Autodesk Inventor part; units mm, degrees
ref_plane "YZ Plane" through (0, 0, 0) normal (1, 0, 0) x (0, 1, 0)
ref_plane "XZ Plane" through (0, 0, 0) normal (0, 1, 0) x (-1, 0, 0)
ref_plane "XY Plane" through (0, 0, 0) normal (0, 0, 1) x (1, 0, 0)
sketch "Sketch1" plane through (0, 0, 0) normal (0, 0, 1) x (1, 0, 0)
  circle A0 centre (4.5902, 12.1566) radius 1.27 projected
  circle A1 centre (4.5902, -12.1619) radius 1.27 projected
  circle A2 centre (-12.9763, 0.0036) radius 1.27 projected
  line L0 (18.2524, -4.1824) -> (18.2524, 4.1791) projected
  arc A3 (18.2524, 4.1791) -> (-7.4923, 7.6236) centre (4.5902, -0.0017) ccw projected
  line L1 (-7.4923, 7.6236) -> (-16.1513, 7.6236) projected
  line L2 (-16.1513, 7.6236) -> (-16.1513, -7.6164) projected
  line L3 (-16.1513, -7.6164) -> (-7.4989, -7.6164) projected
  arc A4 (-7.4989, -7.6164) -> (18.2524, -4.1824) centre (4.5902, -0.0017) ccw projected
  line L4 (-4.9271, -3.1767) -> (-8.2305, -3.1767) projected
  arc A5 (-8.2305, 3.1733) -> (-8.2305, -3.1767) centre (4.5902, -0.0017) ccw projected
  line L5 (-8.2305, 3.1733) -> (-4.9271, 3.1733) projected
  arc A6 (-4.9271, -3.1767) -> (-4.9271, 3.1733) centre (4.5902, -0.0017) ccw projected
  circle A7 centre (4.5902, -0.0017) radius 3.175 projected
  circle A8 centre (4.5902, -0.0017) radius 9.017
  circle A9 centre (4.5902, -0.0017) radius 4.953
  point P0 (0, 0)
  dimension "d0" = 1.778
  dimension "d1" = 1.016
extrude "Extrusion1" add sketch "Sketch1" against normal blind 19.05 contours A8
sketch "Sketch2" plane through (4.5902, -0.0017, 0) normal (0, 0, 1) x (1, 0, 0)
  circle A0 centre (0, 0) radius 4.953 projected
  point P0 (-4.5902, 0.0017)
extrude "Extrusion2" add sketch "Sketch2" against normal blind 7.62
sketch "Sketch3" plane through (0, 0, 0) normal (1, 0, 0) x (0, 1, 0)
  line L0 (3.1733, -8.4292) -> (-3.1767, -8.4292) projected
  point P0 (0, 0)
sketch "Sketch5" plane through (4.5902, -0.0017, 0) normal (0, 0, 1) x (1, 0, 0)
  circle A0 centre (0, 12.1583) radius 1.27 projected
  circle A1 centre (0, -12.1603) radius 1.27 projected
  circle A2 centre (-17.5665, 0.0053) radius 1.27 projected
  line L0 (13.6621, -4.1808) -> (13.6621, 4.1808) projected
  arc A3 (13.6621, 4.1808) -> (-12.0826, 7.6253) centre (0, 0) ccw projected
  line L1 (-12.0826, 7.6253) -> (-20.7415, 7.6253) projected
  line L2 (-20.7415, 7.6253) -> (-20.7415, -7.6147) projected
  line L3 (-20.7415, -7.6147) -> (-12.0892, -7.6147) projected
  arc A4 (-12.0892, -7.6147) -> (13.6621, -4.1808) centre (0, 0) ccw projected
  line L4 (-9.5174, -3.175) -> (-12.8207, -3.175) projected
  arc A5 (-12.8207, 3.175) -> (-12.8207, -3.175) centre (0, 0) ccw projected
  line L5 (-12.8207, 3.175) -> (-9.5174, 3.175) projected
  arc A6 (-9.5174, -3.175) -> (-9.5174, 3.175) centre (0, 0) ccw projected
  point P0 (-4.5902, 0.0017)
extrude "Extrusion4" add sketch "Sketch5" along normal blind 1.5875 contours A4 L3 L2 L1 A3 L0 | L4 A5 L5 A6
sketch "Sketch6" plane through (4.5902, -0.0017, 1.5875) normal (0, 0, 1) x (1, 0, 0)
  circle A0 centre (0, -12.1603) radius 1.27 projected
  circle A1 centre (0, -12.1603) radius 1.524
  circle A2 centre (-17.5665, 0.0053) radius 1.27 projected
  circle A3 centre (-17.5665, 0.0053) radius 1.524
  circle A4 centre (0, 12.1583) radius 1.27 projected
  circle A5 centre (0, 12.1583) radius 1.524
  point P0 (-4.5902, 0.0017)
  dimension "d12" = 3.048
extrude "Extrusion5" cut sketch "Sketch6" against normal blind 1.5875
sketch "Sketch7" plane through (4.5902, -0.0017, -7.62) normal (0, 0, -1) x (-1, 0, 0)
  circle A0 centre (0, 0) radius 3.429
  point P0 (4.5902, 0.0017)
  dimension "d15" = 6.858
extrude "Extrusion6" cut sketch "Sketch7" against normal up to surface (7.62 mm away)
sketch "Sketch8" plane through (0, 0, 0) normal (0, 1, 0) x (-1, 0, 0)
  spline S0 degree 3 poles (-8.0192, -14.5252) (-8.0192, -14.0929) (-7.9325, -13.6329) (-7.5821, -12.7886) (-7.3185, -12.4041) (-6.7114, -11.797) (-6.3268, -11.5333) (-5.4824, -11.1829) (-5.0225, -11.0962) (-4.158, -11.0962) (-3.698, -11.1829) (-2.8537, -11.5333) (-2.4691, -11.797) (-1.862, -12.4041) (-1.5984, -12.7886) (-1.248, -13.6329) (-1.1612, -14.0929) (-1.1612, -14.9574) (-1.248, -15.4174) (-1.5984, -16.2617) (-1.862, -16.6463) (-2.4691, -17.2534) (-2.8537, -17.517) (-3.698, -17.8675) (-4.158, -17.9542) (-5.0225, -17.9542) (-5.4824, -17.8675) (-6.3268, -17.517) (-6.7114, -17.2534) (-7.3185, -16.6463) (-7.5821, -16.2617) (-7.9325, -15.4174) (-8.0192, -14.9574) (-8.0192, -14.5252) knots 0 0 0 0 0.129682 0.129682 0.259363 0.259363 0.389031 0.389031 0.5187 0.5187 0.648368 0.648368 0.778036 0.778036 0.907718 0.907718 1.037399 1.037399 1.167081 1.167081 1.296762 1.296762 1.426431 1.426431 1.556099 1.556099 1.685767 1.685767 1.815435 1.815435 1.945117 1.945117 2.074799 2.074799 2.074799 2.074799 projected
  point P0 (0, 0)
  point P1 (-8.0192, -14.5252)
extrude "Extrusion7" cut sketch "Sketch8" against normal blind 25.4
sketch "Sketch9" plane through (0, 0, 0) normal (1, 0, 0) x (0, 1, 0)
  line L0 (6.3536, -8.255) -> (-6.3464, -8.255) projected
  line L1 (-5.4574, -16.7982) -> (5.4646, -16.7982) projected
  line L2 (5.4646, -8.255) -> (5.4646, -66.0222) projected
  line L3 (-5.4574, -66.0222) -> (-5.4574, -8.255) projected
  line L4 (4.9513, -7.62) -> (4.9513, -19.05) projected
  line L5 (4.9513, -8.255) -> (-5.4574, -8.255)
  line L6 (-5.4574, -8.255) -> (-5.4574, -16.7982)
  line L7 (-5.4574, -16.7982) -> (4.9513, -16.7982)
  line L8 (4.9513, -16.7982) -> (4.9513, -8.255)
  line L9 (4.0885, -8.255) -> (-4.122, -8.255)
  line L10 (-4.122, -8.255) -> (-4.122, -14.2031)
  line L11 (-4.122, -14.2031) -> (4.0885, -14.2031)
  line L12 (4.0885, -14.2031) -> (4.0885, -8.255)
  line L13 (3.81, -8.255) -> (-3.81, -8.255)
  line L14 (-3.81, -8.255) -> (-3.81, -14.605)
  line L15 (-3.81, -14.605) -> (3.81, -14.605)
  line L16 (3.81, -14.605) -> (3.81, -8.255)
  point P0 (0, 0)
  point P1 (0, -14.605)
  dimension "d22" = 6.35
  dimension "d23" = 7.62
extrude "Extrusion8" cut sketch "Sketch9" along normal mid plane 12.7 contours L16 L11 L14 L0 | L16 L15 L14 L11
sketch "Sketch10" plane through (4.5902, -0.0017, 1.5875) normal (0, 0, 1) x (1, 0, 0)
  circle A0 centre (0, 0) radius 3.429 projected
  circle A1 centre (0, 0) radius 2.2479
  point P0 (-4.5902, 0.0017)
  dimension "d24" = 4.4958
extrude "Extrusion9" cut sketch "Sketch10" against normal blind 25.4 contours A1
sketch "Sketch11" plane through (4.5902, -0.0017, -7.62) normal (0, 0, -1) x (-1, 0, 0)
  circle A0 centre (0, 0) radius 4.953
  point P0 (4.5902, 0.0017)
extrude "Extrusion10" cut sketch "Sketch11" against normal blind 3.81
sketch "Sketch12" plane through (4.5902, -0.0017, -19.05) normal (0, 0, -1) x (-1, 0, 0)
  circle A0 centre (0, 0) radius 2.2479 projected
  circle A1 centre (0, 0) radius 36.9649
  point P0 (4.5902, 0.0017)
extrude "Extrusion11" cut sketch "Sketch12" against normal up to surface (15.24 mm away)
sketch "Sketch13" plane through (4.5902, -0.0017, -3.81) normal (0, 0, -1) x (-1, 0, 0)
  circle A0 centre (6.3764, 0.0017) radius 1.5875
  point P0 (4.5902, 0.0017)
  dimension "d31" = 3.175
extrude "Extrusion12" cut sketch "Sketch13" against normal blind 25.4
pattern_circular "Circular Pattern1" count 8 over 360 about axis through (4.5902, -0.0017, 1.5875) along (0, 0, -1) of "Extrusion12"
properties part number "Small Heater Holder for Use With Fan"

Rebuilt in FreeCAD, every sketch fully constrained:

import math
import FreeCAD as App
import Part
import Sketcher

V = App.Vector
Q = App.Units.Quantity

doc = App.newDocument("Part")
body = doc.addObject("PartDesign::Body", "Body")

sketch1 = body.newObject("Sketcher::SketchObject", "Sketch")
sketch1.AttachmentSupport = (doc.getObject("XY_Plane"), [""])
sketch1.MapMode = "FlatFace"
sketch1.addGeometry(Part.Circle(V(4.6, 0, 0), V(0, 0, 1), 9), False)
sketch1.addGeometry(Part.Circle(V(4.6, 0, 0), V(0, 0, 1), 5), False)
sketch1.addConstraint(Sketcher.Constraint("Coincident", 1, 3, 0, 3))
sketch1.addConstraint(Sketcher.Constraint("Diameter", 0, Q("0.71 in")))
sketch1.addConstraint(Sketcher.Constraint("Diameter", 1, Q("0.39 in")))
sketch1.addConstraint(Sketcher.Constraint("DistanceX", -1, 1, 0, 3, Q("4.5902 mm")))
sketch1.addConstraint(Sketcher.Constraint("DistanceY", 0, 3, -1, 1, Q("0.0017 mm")))
pad1 = body.newObject("PartDesign::Pad", "Pad")
pad1.Profile = sketch1
pad1.Length = Q("0.75 in")
pad1.Reversed = True

sketch2 = body.newObject("Sketcher::SketchObject", "Sketch001")
sketch2.AttachmentSupport = (doc.getObject("XY_Plane"), [""])
sketch2.MapMode = "FlatFace"
sketch2.addGeometry(Part.Circle(V(4.6, 0, 0), V(0, 0, 1), 5), False)
sketch2.addConstraint(Sketcher.Constraint("Diameter", 0, Q("0.39 in")))
sketch2.addConstraint(Sketcher.Constraint("DistanceX", -1, 1, 0, 3, Q("4.5902 mm")))
sketch2.addConstraint(Sketcher.Constraint("DistanceY", 0, 3, -1, 1, Q("0.0017 mm")))
pad2 = body.newObject("PartDesign::Pad", "Pad001")
pad2.Profile = sketch2
pad2.Length = Q("0.3 in")
pad2.Reversed = True

sketch3 = body.newObject("Sketcher::SketchObject", "Sketch002")
sketch3.AttachmentSupport = (doc.getObject("XY_Plane"), [""])
sketch3.MapMode = "FlatFace"
sketch3.addGeometry(Part.ArcOfCircle(Part.Circle(V(4.6, 0, 0), V(0, 0, 1), 14.3), math.radians(-148), math.radians(-17)), False)
sketch3.addGeometry(Part.LineSegment(V(18.3, -4.2, 0), V(18.3, 4.2, 0)), False)
sketch3.addGeometry(Part.ArcOfCircle(Part.Circle(V(4.6, 0, 0), V(0, 0, 1), 14.3), math.radians(17), math.radians(148)), False)
sketch3.addGeometry(Part.LineSegment(V(-7.5, 7.6, 0), V(-16.2, 7.6, 0)), False)
sketch3.addGeometry(Part.LineSegment(V(-16.2, 7.6, 0), V(-16.2, -7.6, 0)), False)
sketch3.addGeometry(Part.LineSegment(V(-16.2, -7.6, 0), V(-7.5, -7.6, 0)), False)
sketch3.addGeometry(Part.Circle(V(4.6, -12.2, 0), V(0, 0, 1), 1.3), False)
sketch3.addGeometry(Part.Circle(V(-13, 0, 0), V(0, 0, 1), 1.3), False)
sketch3.addGeometry(Part.Circle(V(4.6, 12.2, 0), V(0, 0, 1), 1.3), False)
sketch3.addConstraint(Sketcher.Constraint("Coincident", 0, 2, 1, 1))
sketch3.addConstraint(Sketcher.Constraint("Coincident", 1, 2, 2, 1))
sketch3.addConstraint(Sketcher.Constraint("Coincident", 2, 2, 3, 1))
sketch3.addConstraint(Sketcher.Constraint("Coincident", 3, 2, 4, 1))
sketch3.addConstraint(Sketcher.Constraint("Coincident", 4, 2, 5, 1))
sketch3.addConstraint(Sketcher.Constraint("Coincident", 5, 2, 0, 1))
sketch3.addConstraint(Sketcher.Constraint("Vertical", 1))
sketch3.addConstraint(Sketcher.Constraint("Horizontal", 3))
sketch3.addConstraint(Sketcher.Constraint("Vertical", 4))
sketch3.addConstraint(Sketcher.Constraint("Horizontal", 5))
sketch3.addConstraint(Sketcher.Constraint("Coincident", 2, 3, 0, 3))
sketch3.addConstraint(Sketcher.Constraint("Equal", 0, 2))
sketch3.addConstraint(Sketcher.Constraint("Equal", 6, 7))
sketch3.addConstraint(Sketcher.Constraint("Equal", 7, 8))
sketch3.addConstraint(Sketcher.Constraint("Vertical", 2, 3, 6, 3))
sketch3.addConstraint(Sketcher.Constraint("Vertical", 6, 3, 8, 3))
sketch3.addConstraint(Sketcher.Constraint("Diameter", 6, Q("0.1 in")))
sketch3.addConstraint(Sketcher.Constraint("DistanceY", 4, 2, 4, 1, Q("0.6 in")))
sketch3.addConstraint(Sketcher.Constraint("Radius", 0, Q("0.5625 in")))
sketch3.addConstraint(Sketcher.Constraint("DistanceY", 7, 3, 2, 2, Q("0.3 in")))
sketch3.addConstraint(Sketcher.Constraint("DistanceX", 3, 2, 3, 1, Q("0.3409 in")))
sketch3.addConstraint(Sketcher.Constraint("DistanceY", 1, 1, 1, 2, Q("0.3292 in")))
sketch3.addConstraint(Sketcher.Constraint("DistanceX", 3, 2, 7, 3, Q("0.125 in")))
sketch3.addConstraint(Sketcher.Constraint("DistanceX", 5, 1, 5, 2, Q("8.6523 mm")))
sketch3.addConstraint(Sketcher.Constraint("DistanceY", -1, 1, 8, 3, Q("0.4786 in")))
sketch3.addConstraint(Sketcher.Constraint("DistanceX", -1, 1, 0, 2, Q("0.7186 in")))
sketch3.addConstraint(Sketcher.Constraint("DistanceY", 0, 3, -1, 1, Q("0.0017 mm")))
sketch3.addConstraint(Sketcher.Constraint("DistanceY", 6, 3, -1, 1, Q("12.162 mm")))
pad3 = body.newObject("PartDesign::Pad", "Pad002")
pad3.Profile = sketch3
pad3.Length = Q("0.0625 in")

sketch4 = body.newObject("Sketcher::SketchObject", "Sketch003")
sketch4.AttachmentSupport = (doc.getObject("XY_Plane"), [""])
sketch4.MapMode = "FlatFace"
sketch4.AttachmentOffset = App.Placement(V(0, 0, 0.0625 * 25.4), App.Rotation())
sketch4.addGeometry(Part.Circle(V(4.6, -12.2, 0), V(0, 0, 1), 1.5), False)
sketch4.addGeometry(Part.Circle(V(4.6, -12.2, 0), V(0, 0, 1), 1.3), False)
sketch4.addGeometry(Part.Circle(V(-13, 0, 0), V(0, 0, 1), 1.5), False)
sketch4.addGeometry(Part.Circle(V(-13, 0, 0), V(0, 0, 1), 1.3), False)
sketch4.addGeometry(Part.Circle(V(4.6, 12.2, 0), V(0, 0, 1), 1.5), False)
sketch4.addGeometry(Part.Circle(V(4.6, 12.2, 0), V(0, 0, 1), 1.3), False)
sketch4.addConstraint(Sketcher.Constraint("Coincident", 1, 3, 0, 3))
sketch4.addConstraint(Sketcher.Constraint("Coincident", 3, 3, 2, 3))
sketch4.addConstraint(Sketcher.Constraint("Coincident", 5, 3, 4, 3))
sketch4.addConstraint(Sketcher.Constraint("Equal", 0, 2))
sketch4.addConstraint(Sketcher.Constraint("Equal", 1, 3))
sketch4.addConstraint(Sketcher.Constraint("Equal", 2, 4))
sketch4.addConstraint(Sketcher.Constraint("Equal", 3, 5))
sketch4.addConstraint(Sketcher.Constraint("Vertical", 1, 3, 4, 3))
sketch4.addConstraint(Sketcher.Constraint("Diameter", 0, Q("0.12 in")))
sketch4.addConstraint(Sketcher.Constraint("Diameter", 1, Q("0.1 in")))
sketch4.addConstraint(Sketcher.Constraint("DistanceY", -1, 1, 4, 3, Q("0.4786 in")))
sketch4.addConstraint(Sketcher.Constraint("DistanceX", 2, 3, 0, 3, Q("0.6916 in")))
sketch4.addConstraint(Sketcher.Constraint("DistanceX", -1, 1, 0, 3, Q("4.5902 mm")))
sketch4.addConstraint(Sketcher.Constraint("DistanceY", 0, 3, -1, 1, Q("12.162 mm")))
sketch4.addConstraint(Sketcher.Constraint("DistanceY", -1, 1, 2, 3, Q("0.0036 mm")))
pocket1 = body.newObject("PartDesign::Pocket", "Pocket")
pocket1.Profile = sketch4
pocket1.Length = Q("0.0625 in")

sketch5 = body.newObject("Sketcher::SketchObject", "Sketch004")
sketch5.AttachmentSupport = (doc.getObject("XY_Plane"), [""])
sketch5.MapMode = "FlatFace"
sketch5.AttachmentOffset = App.Placement(V(0, 0, -0.3 * 25.4), App.Rotation())
sketch5.addGeometry(Part.Circle(V(4.6, 0, 0), V(0, 0, 1), 3.4), False)
sketch5.addConstraint(Sketcher.Constraint("Diameter", 0, Q("0.27 in")))
sketch5.addConstraint(Sketcher.Constraint("DistanceX", -1, 1, 0, 3, Q("4.5902 mm")))
sketch5.addConstraint(Sketcher.Constraint("DistanceY", 0, 3, -1, 1, Q("0.0017 mm")))
pocket2 = body.newObject("PartDesign::Pocket", "Pocket001")
pocket2.Profile = sketch5
pocket2.Length = Q("0.3 in")
pocket2.Reversed = True

sketch6 = body.newObject("Sketcher::SketchObject", "Sketch005")
sketch6.AttachmentSupport = (doc.getObject("XZ_Plane"), [""])
sketch6.MapMode = "FlatFace"
sketch6.addGeometry(Part.BSplineCurve([V(8.0192, -14.5252, 0), V(8.0192, -14.0929, 0), V(7.9325, -13.6329, 0), V(7.5821, -12.7886, 0), V(7.3185, -12.4041, 0), V(6.7114, -11.797, 0), V(6.3268, -11.5333, 0), V(5.4824, -11.1829, 0), V(5.0225, -11.0962, 0), V(4.158, -11.0962, 0), V(3.698, -11.1829, 0), V(2.8537, -11.5333, 0), V(2.4691, -11.797, 0), V(1.862, -12.4041, 0), V(1.5984, -12.7886, 0), V(1.248, -13.6329, 0), V(1.1612, -14.0929, 0), V(1.1612, -14.9574, 0), V(1.248, -15.4174, 0), V(1.5984, -16.2617, 0), V(1.862, -16.6463, 0), V(2.4691, -17.2534, 0), V(2.8537, -17.517, 0), V(3.698, -17.8675, 0), V(4.158, -17.9542, 0), V(5.0225, -17.9542, 0), V(5.4824, -17.8675, 0), V(6.3268, -17.517, 0), V(6.7114, -17.2534, 0), V(7.3185, -16.6463, 0), V(7.5821, -16.2617, 0), V(7.9325, -15.4174, 0), V(8.0192, -14.9574, 0), V(8.0192, -14.5252, 0)], [4, 2, 2, 2, 2, 2, 2, 2, 2, 2, 2, 2, 2, 2, 2, 2, 4], [0, 0.129682, 0.259363, 0.389031, 0.5187, 0.648368, 0.778036, 0.907718, 1.037399, 1.167081, 1.296762, 1.426431, 1.556099, 1.685767, 1.815435, 1.945117, 2.074799], False, 3, [1, 1, 1, 1, 1, 1, 1, 1, 1, 1, 1, 1, 1, 1, 1, 1, 1, 1, 1, 1, 1, 1, 1, 1, 1, 1, 1, 1, 1, 1, 1, 1, 1, 1], False), False)
sketch6.addConstraint(Sketcher.Constraint("Block", 0))
pocket3 = body.newObject("PartDesign::Pocket", "Pocket002")
pocket3.Profile = sketch6
pocket3.Length = Q("1 in")
pocket3.Reversed = True

sketch7 = body.newObject("Sketcher::SketchObject", "Sketch006")
sketch7.AttachmentSupport = (doc.getObject("YZ_Plane"), [""])
sketch7.MapMode = "FlatFace"
sketch7.addGeometry(Part.LineSegment(V(4, -8, 0), V(-4, -8, 0)), False)
sketch7.addGeometry(Part.LineSegment(V(-4, -8, 0), V(-4, -15, 0)), False)
sketch7.addGeometry(Part.LineSegment(V(-4, -15, 0), V(4, -15, 0)), False)
sketch7.addGeometry(Part.LineSegment(V(4, -15, 0), V(4, -8, 0)), False)
sketch7.addConstraint(Sketcher.Constraint("Coincident", 0, 2, 1, 1))
sketch7.addConstraint(Sketcher.Constraint("Coincident", 1, 2, 2, 1))
sketch7.addConstraint(Sketcher.Constraint("Coincident", 2, 2, 3, 1))
sketch7.addConstraint(Sketcher.Constraint("Coincident", 3, 2, 0, 1))
sketch7.addConstraint(Sketcher.Constraint("Horizontal", 0))
sketch7.addConstraint(Sketcher.Constraint("Vertical", 1))
sketch7.addConstraint(Sketcher.Constraint("Horizontal", 2))
sketch7.addConstraint(Sketcher.Constraint("Vertical", 3))
sketch7.addConstraint(Sketcher.Constraint("DistanceX", 0, 2, 0, 1, Q("0.3 in")))
sketch7.addConstraint(Sketcher.Constraint("DistanceY", 1, 2, 1, 1, Q("0.25 in")))
sketch7.addConstraint(Sketcher.Constraint("DistanceX", 0, 2, -1, 1, Q("0.15 in")))
sketch7.addConstraint(Sketcher.Constraint("DistanceY", 0, 2, -1, 1, Q("0.325 in")))
pocket4 = body.newObject("PartDesign::Pocket", "Pocket003")
pocket4.Profile = sketch7
pocket4.Length = Q("0.5 in")
pocket4.Midplane = True

sketch8 = body.newObject("Sketcher::SketchObject", "Sketch007")
sketch8.AttachmentSupport = (doc.getObject("XY_Plane"), [""])
sketch8.MapMode = "FlatFace"
sketch8.AttachmentOffset = App.Placement(V(0, 0, 0.0625 * 25.4), App.Rotation())
sketch8.addGeometry(Part.Circle(V(4.6, 0, 0), V(0, 0, 1), 2.2), False)
sketch8.addConstraint(Sketcher.Constraint("Diameter", 0, Q("0.177 in")))
sketch8.addConstraint(Sketcher.Constraint("DistanceX", -1, 1, 0, 3, Q("4.5902 mm")))
sketch8.addConstraint(Sketcher.Constraint("DistanceY", 0, 3, -1, 1, Q("0.0017 mm")))
pocket5 = body.newObject("PartDesign::Pocket", "Pocket004")
pocket5.Profile = sketch8
pocket5.Length = Q("1 in")

sketch9 = body.newObject("Sketcher::SketchObject", "Sketch008")
sketch9.AttachmentSupport = (doc.getObject("XY_Plane"), [""])
sketch9.MapMode = "FlatFace"
sketch9.AttachmentOffset = App.Placement(V(0, 0, -0.3 * 25.4), App.Rotation())
sketch9.addGeometry(Part.Circle(V(4.6, 0, 0), V(0, 0, 1), 5), False)
sketch9.addConstraint(Sketcher.Constraint("Diameter", 0, Q("0.39 in")))
sketch9.addConstraint(Sketcher.Constraint("DistanceX", -1, 1, 0, 3, Q("4.5902 mm")))
sketch9.addConstraint(Sketcher.Constraint("DistanceY", 0, 3, -1, 1, Q("0.0017 mm")))
pocket6 = body.newObject("PartDesign::Pocket", "Pocket005")
pocket6.Profile = sketch9
pocket6.Length = Q("0.15 in")
pocket6.Reversed = True

sketch10 = body.newObject("Sketcher::SketchObject", "Sketch009")
sketch10.AttachmentSupport = (doc.getObject("XY_Plane"), [""])
sketch10.MapMode = "FlatFace"
sketch10.AttachmentOffset = App.Placement(V(0, 0, -0.75 * 25.4), App.Rotation())
sketch10.addGeometry(Part.Circle(V(4.6, 0, 0), V(0, 0, 1), 37), False)
sketch10.addGeometry(Part.Circle(V(4.6, 0, 0), V(0, 0, 1), 2.2), False)
sketch10.addConstraint(Sketcher.Constraint("Coincident", 1, 3, 0, 3))
sketch10.addConstraint(Sketcher.Constraint("Diameter", 1, Q("0.177 in")))
sketch10.addConstraint(Sketcher.Constraint("Diameter", 0, Q("73.9298 mm")))
sketch10.addConstraint(Sketcher.Constraint("DistanceX", -1, 1, 0, 3, Q("4.5902 mm")))
sketch10.addConstraint(Sketcher.Constraint("DistanceY", 0, 3, -1, 1, Q("0.0017 mm")))
pocket7 = body.newObject("PartDesign::Pocket", "Pocket006")
pocket7.Profile = sketch10
pocket7.Length = Q("0.6 in")
pocket7.Reversed = True

sketch11 = body.newObject("Sketcher::SketchObject", "Sketch010")
sketch11.AttachmentSupport = (doc.getObject("XY_Plane"), [""])
sketch11.MapMode = "FlatFace"
sketch11.AttachmentOffset = App.Placement(V(0, 0, -0.15 * 25.4), App.Rotation())
sketch11.addGeometry(Part.Circle(V(-1.8, 0, 0), V(0, 0, 1), 1.6), False)
sketch11.addConstraint(Sketcher.Constraint("PointOnObject", 0, 3, -1))
sketch11.addConstraint(Sketcher.Constraint("Diameter", 0, Q("0.125 in")))
sketch11.addConstraint(Sketcher.Constraint("DistanceX", 0, 3, -1, 1, Q("1.7862 mm")))
pocket8 = body.newObject("PartDesign::Pocket", "Pocket007")
pocket8.Profile = sketch11
pocket8.Length = Q("1 in")
pocket8.Reversed = True
doc.recompute()

datumline = body.newObject("PartDesign::Line", "DatumLine")
datumline.Placement = App.Placement(V(4.5902, -0.0017, 0), App.Rotation(V(0, 0, 1), V(0, 0, 1)))
polarpattern = body.newObject("PartDesign::PolarPattern", "PolarPattern")
polarpattern.Originals = [pocket8]
polarpattern.Axis = (datumline, [""])
polarpattern.Angle = 360
polarpattern.Occurrences = 8
body.Tip = polarpattern

doc.recompute()
